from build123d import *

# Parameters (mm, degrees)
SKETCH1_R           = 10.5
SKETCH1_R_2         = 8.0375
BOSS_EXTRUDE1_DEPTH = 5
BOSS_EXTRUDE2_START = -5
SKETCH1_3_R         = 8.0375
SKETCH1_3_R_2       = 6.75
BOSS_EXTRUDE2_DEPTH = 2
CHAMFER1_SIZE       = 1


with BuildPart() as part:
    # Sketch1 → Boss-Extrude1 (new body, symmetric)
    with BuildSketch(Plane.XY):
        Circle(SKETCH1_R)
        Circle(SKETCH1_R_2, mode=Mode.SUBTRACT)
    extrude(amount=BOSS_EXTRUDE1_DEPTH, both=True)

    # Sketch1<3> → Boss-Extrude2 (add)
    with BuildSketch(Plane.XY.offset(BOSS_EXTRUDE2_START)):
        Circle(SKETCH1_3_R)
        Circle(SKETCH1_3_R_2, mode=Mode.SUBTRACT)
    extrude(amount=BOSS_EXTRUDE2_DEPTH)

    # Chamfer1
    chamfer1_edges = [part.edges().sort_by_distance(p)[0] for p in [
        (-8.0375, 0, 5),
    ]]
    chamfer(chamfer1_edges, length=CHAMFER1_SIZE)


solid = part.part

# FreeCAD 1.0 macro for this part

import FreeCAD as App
import Part
import Sketcher
from FreeCAD import Vector
Q = App.Units.Quantity


def edges_at(feature, points):
    """Names of the edges that pass closest to the given points."""
    edges = feature.Shape.Edges
    near = lambda p: min(range(len(edges)), key=lambda i: edges[i].distToShape(Part.Vertex(*p))[0])
    return sorted({f"Edge{near(p) + 1}" for p in points})

doc = App.newDocument("Part")
body = doc.addObject("PartDesign::Body", "Body")

sketch1 = body.newObject("Sketcher::SketchObject", "Sketch")
sketch1.AttachmentSupport = (doc.getObject("XY_Plane"), [""])
sketch1.MapMode = "FlatFace"
sketch1.addGeometry(Part.Circle(Vector(0, 0, 0), Vector(0, 0, 1), 10), False)
sketch1.addGeometry(Part.Circle(Vector(0, 0, 0), Vector(0, 0, 1), 8), False)
sketch1.addConstraint(Sketcher.Constraint("Coincident", 0, 3, -1, 1))
sketch1.addConstraint(Sketcher.Constraint("Coincident", 1, 3, -1, 1))
sketch1.addConstraint(Sketcher.Constraint("Diameter", 0, Q("21 mm")))
sketch1.addConstraint(Sketcher.Constraint("Diameter", 1, Q("16.075 mm")))
pad1 = body.newObject("PartDesign::Pad", "Pad")
pad1.Profile = sketch1
pad1.Length = 10
pad1.Midplane = True

sketch2 = body.newObject("Sketcher::SketchObject", "Sketch001")
sketch2.AttachmentSupport = (doc.getObject("XY_Plane"), [""])
sketch2.MapMode = "FlatFace"
sketch2.AttachmentOffset = App.Placement(Vector(0, 0, -5), App.Rotation())
sketch2.addGeometry(Part.Circle(Vector(0, 0, 0), Vector(0, 0, 1), 8), False)
sketch2.addGeometry(Part.Circle(Vector(0, 0, 0), Vector(0, 0, 1), 7), False)
sketch2.addConstraint(Sketcher.Constraint("Coincident", 0, 3, -1, 1))
sketch2.addConstraint(Sketcher.Constraint("Coincident", 1, 3, -1, 1))
sketch2.addConstraint(Sketcher.Constraint("Diameter", 1, Q("13.5 mm")))
sketch2.addConstraint(Sketcher.Constraint("Diameter", 0, Q("16.075 mm")))
pad2 = body.newObject("PartDesign::Pad", "Pad001")
pad2.Profile = sketch2
pad2.Length = 2
doc.recompute()

chamfer = body.newObject("PartDesign::Chamfer", "Chamfer")
chamfer.Base = (pad2, edges_at(pad2, [(-8.037, 0, 5)]))
chamfer.Size = 1

doc.recompute()
